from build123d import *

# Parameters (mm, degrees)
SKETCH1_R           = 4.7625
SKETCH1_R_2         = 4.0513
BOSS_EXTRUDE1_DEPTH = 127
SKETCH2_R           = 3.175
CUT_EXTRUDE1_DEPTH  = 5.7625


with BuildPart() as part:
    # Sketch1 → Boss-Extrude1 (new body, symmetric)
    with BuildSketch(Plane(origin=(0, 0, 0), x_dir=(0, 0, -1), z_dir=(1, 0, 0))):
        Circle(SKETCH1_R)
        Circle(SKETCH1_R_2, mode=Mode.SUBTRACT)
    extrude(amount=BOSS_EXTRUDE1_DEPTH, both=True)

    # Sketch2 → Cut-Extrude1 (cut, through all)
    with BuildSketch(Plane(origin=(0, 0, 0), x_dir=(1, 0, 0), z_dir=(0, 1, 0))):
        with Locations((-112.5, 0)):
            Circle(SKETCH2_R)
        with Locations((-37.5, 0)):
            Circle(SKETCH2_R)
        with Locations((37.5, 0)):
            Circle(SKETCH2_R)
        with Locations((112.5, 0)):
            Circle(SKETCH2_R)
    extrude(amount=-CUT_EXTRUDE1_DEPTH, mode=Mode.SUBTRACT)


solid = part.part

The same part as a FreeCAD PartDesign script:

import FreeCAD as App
import Part
import Sketcher
Q = App.Units.Quantity

doc = App.newDocument("Part")
body = doc.addObject("PartDesign::Body", "Body")

# Sketch on YZ plane
sketch1 = doc.addObject("Sketcher::SketchObject", "Sketch")
body.addObject(sketch1)
sketch1.AttachmentSupport = (doc.YZ_Plane, [""])
sketch1.MapMode = "FlatFace"
sketch1.addGeometry([
    Part.Circle(App.Vector(0, 0, 0), App.Vector(0, 0, 1), 4.8),
    Part.Circle(App.Vector(0, 0, 0), App.Vector(0, 0, 1), 4.1),
], False)
sketch1.addConstraint([
    Sketcher.Constraint("Coincident", 0, 3, -1, 1),
    Sketcher.Constraint("Coincident", 1, 3, -1, 1),
    Sketcher.Constraint("Diameter", 0, Q("0.375 in")),
    Sketcher.Constraint("Diameter", 1, Q("0.319 in")),
])
pad1 = doc.addObject("PartDesign::Pad", "Pad")
body.addObject(pad1)
pad1.Profile = sketch1
pad1.Length = Q("10 in")
pad1.Midplane = True

# Sketch on XZ plane
sketch2 = doc.addObject("Sketcher::SketchObject", "Sketch001")
body.addObject(sketch2)
sketch2.AttachmentSupport = (doc.XZ_Plane, [""])
sketch2.MapMode = "FlatFace"
sketch2.addGeometry([
    Part.Circle(App.Vector(-112.5, 0, 0), App.Vector(0, 0, 1), 3.2),
    Part.Circle(App.Vector(-37.5, 0, 0), App.Vector(0, 0, 1), 3.2),
    Part.Circle(App.Vector(37.5, 0, 0), App.Vector(0, 0, 1), 3.2),
    Part.Circle(App.Vector(112.5, 0, 0), App.Vector(0, 0, 1), 3.2),
], False)
sketch2.addConstraint([
    Sketcher.Constraint("Equal", 0, 1),
    Sketcher.Constraint("Equal", 1, 2),
    Sketcher.Constraint("Equal", 2, 3),
    Sketcher.Constraint("Symmetric", 1, 3, 2, 3, -1, 1),
    Sketcher.Constraint("Symmetric", 0, 3, 3, 3, -1, 1),
    Sketcher.Constraint("PointOnObject", 0, 3, -1),
    Sketcher.Constraint("PointOnObject", 1, 3, -1),
    Sketcher.Constraint("Diameter", 0, Q("0.25 in")),
    Sketcher.Constraint("DistanceX", 0, 3, -1, 1, 112.5),
    Sketcher.Constraint("DistanceX", 1, 3, -1, 1, 37.5),
])
pocket1 = doc.addObject("PartDesign::Pocket", "Pocket")
body.addObject(pocket1)
pocket1.Profile = sketch2
pocket1.Type = "ThroughAll"
pocket1.Reversed = True

doc.recompute()
